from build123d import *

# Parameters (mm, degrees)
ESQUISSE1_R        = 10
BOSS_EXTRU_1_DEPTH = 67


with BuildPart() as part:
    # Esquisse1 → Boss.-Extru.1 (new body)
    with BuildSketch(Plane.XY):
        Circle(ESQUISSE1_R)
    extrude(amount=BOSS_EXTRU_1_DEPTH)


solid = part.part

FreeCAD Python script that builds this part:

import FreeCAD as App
import Part
import Sketcher
Q = App.Units.Quantity

doc = App.newDocument("Part")
body = doc.addObject("PartDesign::Body", "Body")

# Sketch on XY plane
sketch1 = body.newObject("Sketcher::SketchObject", "Sketch")
sketch1.AttachmentSupport = (doc.getObject("XY_Plane"), [""])
sketch1.MapMode = "FlatFace"
sketch1.addGeometry(Part.Circle(App.Vector(0, 0, 0), App.Vector(0, 0, 1), 10), False)
sketch1.addConstraint([
    Sketcher.Constraint("Coincident", 0, 3, -1, 1),
    Sketcher.Constraint("Diameter", 0, Q("20 mm")),
])
pad1 = body.newObject("PartDesign::Pad", "Pad")
pad1.Profile = sketch1
pad1.Length = 67

doc.recompute()
